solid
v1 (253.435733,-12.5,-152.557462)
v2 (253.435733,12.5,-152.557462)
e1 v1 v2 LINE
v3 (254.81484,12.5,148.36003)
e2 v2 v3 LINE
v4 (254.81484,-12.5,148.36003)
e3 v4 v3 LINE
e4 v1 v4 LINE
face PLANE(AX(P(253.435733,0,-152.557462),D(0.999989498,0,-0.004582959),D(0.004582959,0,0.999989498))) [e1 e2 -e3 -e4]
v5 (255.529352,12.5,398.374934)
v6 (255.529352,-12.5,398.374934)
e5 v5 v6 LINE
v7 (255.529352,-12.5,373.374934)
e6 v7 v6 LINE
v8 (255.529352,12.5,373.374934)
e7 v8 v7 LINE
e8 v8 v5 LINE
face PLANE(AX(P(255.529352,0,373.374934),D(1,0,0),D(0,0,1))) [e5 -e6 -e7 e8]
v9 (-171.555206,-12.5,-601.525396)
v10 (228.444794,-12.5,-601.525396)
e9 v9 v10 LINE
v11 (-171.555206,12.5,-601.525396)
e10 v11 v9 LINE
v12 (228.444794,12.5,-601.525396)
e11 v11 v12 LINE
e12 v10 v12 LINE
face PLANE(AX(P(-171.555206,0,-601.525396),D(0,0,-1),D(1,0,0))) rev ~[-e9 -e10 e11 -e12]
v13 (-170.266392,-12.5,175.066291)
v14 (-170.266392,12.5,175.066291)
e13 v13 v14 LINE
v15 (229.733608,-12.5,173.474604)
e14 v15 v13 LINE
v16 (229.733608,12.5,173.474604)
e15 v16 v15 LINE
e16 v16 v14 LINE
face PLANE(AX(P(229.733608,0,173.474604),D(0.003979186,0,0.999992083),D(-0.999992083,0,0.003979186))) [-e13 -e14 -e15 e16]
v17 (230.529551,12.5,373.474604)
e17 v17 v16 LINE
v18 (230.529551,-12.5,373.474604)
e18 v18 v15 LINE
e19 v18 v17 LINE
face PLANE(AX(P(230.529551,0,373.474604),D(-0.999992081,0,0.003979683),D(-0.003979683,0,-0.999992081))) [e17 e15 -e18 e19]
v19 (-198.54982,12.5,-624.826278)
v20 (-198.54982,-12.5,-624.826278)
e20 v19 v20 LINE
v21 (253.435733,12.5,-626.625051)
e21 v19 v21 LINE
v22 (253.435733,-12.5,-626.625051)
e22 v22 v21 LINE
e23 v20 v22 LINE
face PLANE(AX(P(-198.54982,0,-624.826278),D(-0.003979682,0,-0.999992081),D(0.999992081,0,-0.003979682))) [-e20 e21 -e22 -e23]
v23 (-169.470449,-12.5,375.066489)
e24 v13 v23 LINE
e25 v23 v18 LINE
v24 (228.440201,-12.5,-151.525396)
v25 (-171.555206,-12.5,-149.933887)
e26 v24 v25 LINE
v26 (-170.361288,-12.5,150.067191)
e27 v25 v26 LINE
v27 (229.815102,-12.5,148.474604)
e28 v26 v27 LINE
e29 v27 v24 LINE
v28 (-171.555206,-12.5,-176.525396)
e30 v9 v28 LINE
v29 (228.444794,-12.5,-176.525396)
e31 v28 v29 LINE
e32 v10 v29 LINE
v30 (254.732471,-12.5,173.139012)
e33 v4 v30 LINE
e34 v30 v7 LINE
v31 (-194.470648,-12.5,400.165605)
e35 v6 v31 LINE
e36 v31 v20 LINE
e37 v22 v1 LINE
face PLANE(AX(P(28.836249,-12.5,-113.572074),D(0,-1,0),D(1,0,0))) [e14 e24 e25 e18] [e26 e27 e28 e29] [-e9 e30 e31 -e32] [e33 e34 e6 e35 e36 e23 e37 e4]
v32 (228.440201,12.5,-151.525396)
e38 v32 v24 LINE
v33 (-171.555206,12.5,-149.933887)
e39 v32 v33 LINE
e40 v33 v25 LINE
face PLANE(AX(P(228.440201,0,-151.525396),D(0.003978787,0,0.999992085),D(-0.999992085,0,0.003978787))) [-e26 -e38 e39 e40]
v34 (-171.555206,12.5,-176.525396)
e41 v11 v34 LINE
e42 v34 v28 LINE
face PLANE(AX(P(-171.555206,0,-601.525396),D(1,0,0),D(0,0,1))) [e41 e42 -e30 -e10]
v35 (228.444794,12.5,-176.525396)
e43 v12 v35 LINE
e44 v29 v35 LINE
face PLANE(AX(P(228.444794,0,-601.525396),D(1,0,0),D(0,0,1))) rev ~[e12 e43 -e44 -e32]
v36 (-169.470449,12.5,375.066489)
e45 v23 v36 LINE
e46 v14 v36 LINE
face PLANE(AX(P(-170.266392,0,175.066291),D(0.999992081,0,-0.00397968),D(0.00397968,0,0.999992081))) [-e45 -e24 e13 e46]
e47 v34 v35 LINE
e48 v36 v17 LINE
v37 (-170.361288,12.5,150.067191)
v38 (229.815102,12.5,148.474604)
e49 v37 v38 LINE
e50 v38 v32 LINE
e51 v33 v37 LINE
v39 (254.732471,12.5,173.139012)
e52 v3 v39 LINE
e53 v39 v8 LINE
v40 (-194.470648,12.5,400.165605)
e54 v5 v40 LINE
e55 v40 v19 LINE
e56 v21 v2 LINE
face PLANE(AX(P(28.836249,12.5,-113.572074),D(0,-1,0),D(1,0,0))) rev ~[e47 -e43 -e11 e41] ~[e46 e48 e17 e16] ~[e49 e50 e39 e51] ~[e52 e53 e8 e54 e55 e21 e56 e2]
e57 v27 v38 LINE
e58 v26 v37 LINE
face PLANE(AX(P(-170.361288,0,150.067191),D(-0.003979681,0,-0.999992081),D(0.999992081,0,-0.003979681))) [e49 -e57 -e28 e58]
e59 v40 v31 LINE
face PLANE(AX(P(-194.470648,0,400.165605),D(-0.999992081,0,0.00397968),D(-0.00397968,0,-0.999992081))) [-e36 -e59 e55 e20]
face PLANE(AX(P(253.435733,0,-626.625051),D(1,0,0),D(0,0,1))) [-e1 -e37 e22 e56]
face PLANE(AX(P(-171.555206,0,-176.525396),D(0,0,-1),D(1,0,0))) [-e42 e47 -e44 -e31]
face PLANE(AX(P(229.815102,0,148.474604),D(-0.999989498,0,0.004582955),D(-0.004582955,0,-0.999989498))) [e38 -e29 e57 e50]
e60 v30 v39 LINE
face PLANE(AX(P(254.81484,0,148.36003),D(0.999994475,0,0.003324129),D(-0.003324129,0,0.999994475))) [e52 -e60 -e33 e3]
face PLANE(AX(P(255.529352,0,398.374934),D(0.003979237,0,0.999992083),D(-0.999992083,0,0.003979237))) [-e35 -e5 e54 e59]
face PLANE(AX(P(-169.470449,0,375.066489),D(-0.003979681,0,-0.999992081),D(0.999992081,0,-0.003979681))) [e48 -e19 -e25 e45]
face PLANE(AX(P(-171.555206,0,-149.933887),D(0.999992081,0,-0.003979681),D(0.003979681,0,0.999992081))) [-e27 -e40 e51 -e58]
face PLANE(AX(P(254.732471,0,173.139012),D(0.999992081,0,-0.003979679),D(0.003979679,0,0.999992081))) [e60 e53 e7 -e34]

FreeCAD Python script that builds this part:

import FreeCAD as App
import Part
import Sketcher

V = App.Vector

doc = App.newDocument("Part")
body = doc.addObject("PartDesign::Body", "Body")

# Sketch on XZ plane
sketch1 = doc.addObject("Sketcher::SketchObject", "Sketch")
body.addObject(sketch1)
sketch1.AttachmentSupport = (doc.XZ_Plane, [""])
sketch1.MapMode = "FlatFace"
sketch1.addGeometry([
    Part.LineSegment(V(254.732471, 173.139012, 0), V(255.529352, 373.374934, 0)),  # 0
    Part.LineSegment(V(255.529352, 373.374934, 0), V(255.529352, 398.374934, 0)),  # 1
    Part.LineSegment(V(255.529352, 398.374934, 0), V(-194.470648, 400.165605, 0)),  # 2
    Part.LineSegment(V(-194.470648, 400.165605, 0), V(-198.54982, -624.826278, 0)),  # 3
    Part.LineSegment(V(-198.54982, -624.826278, 0), V(253.435733, -626.625051, 0)),  # 4
    Part.LineSegment(V(253.435733, -626.625051, 0), V(253.435733, -152.557462, 0)),  # 5
    Part.LineSegment(V(253.435733, -152.557462, 0), V(254.81484, 148.36003, 0)),  # 6
    Part.LineSegment(V(254.81484, 148.36003, 0), V(254.732471, 173.139012, 0)),  # 7
    Part.LineSegment(V(228.444794, -601.525396, 0), V(-171.555206, -601.525396, 0)),  # 8
    Part.LineSegment(V(-171.555206, -601.525396, 0), V(-171.555206, -176.525396, 0)),  # 9
    Part.LineSegment(V(-171.555206, -176.525396, 0), V(228.444794, -176.525396, 0)),  # 10
    Part.LineSegment(V(228.444794, -176.525396, 0), V(228.444794, -601.525396, 0)),  # 11
    Part.LineSegment(V(229.815102, 148.474604, 0), V(228.440201, -151.525396, 0)),  # 12
    Part.LineSegment(V(228.440201, -151.525396, 0), V(-171.555206, -149.933887, 0)),  # 13
    Part.LineSegment(V(-171.555206, -149.933887, 0), V(-170.361288, 150.067191, 0)),  # 14
    Part.LineSegment(V(-170.361288, 150.067191, 0), V(229.815102, 148.474604, 0)),  # 15
    Part.LineSegment(V(230.529551, 373.474604, 0), V(229.733608, 173.474604, 0)),  # 16
    Part.LineSegment(V(229.733608, 173.474604, 0), V(-170.266392, 175.066291, 0)),  # 17
    Part.LineSegment(V(-170.266392, 175.066291, 0), V(-169.470449, 375.066489, 0)),  # 18
    Part.LineSegment(V(-169.470449, 375.066489, 0), V(230.529551, 373.474604, 0)),  # 19
], False)
sketch1.addConstraint([
    Sketcher.Constraint("Coincident", 0, 2, 1, 1),
    Sketcher.Constraint("Coincident", 1, 2, 2, 1),
    Sketcher.Constraint("Coincident", 2, 2, 3, 1),
    Sketcher.Constraint("Coincident", 3, 2, 4, 1),
    Sketcher.Constraint("Coincident", 4, 2, 5, 1),
    Sketcher.Constraint("Coincident", 5, 2, 6, 1),
    Sketcher.Constraint("Coincident", 6, 2, 7, 1),
    Sketcher.Constraint("Coincident", 7, 2, 0, 1),
    Sketcher.Constraint("Coincident", 8, 2, 9, 1),
    Sketcher.Constraint("Coincident", 9, 2, 10, 1),
    Sketcher.Constraint("Coincident", 10, 2, 11, 1),
    Sketcher.Constraint("Coincident", 11, 2, 8, 1),
    Sketcher.Constraint("Coincident", 12, 2, 13, 1),
    Sketcher.Constraint("Coincident", 13, 2, 14, 1),
    Sketcher.Constraint("Coincident", 14, 2, 15, 1),
    Sketcher.Constraint("Coincident", 15, 2, 12, 1),
    Sketcher.Constraint("Coincident", 16, 2, 17, 1),
    Sketcher.Constraint("Coincident", 17, 2, 18, 1),
    Sketcher.Constraint("Coincident", 18, 2, 19, 1),
    Sketcher.Constraint("Coincident", 19, 2, 16, 1),
    Sketcher.Constraint("Vertical", 1),
    Sketcher.Constraint("Vertical", 5),
    Sketcher.Constraint("Horizontal", 8),
    Sketcher.Constraint("Vertical", 9),
    Sketcher.Constraint("Horizontal", 10),
    Sketcher.Constraint("Vertical", 11),
    Sketcher.Constraint("Perpendicular", 0, 2),
    Sketcher.Constraint("Perpendicular", 2, 3),
    Sketcher.Constraint("Perpendicular", 3, 4),
    Sketcher.Constraint("Parallel", 6, 12),
    Sketcher.Constraint("Parallel", 4, 13),
    Sketcher.Constraint("Perpendicular", 13, 14),
    Sketcher.Constraint("Perpendicular", 14, 15),
    Sketcher.Constraint("Perpendicular", 15, 16),
    Sketcher.Constraint("Perpendicular", 16, 17),
    Sketcher.Constraint("Perpendicular", 17, 18),
    Sketcher.Constraint("Perpendicular", 18, 19),
    Sketcher.Constraint("Vertical", 9, 2, 13, 2),
    Sketcher.Constraint("DistanceX", 8, 2, 8, 1, 400.0),
    Sketcher.Constraint("DistanceY", 1, 1, 1, 2, 25.0),
    Sketcher.Constraint("DistanceY", 9, 1, 9, 2, 425.0),
    Sketcher.Constraint("Distance", 3, 1025.0),
    Sketcher.Constraint("DistanceX", 2, 2, 1, 2, 450.0),
    Sketcher.Constraint("DistanceY", 10, 2, 12, 2, 25.0),
    Sketcher.Constraint("DistanceY", 12, 2, 15, 2, 300.0),
    Sketcher.Constraint("DistanceY", 15, 2, 16, 2, 25.0),
    Sketcher.Constraint("DistanceX", 17, 2, 16, 2, 400.0),
    Sketcher.Constraint("DistanceY", 16, 2, 19, 2, 200.0),
    Sketcher.Constraint("DistanceY", 5, 1, 5, 2, 474.067589),
    Sketcher.Constraint("DistanceX", -1, 1, 12, 2, 228.440201),
    Sketcher.Constraint("DistanceX", -1, 1, 15, 2, 229.815102),
    Sketcher.Constraint("DistanceX", 2, 2, 18, 2, 25.000199),
    Sketcher.Constraint("Distance", 7, 24.779119),
    Sketcher.Constraint("Distance", 15, 400.179559),
    Sketcher.Constraint("DistanceX", -1, 1, 0, 2, 255.529352),
    Sketcher.Constraint("DistanceX", 3, 2, -1, 1, 198.54982),
    Sketcher.Constraint("DistanceY", 3, 2, -1, 1, 624.826278),
    Sketcher.Constraint("DistanceX", -1, 1, 6, 2, 254.81484),
    Sketcher.Constraint("DistanceY", -1, 1, 6, 2, 148.36003),
    Sketcher.Constraint("DistanceY", -1, 1, 14, 2, 150.067191),
])
pad1 = doc.addObject("PartDesign::Pad", "Pad")
body.addObject(pad1)
pad1.Profile = sketch1
pad1.Length = 25
pad1.Midplane = True

doc.recompute()
